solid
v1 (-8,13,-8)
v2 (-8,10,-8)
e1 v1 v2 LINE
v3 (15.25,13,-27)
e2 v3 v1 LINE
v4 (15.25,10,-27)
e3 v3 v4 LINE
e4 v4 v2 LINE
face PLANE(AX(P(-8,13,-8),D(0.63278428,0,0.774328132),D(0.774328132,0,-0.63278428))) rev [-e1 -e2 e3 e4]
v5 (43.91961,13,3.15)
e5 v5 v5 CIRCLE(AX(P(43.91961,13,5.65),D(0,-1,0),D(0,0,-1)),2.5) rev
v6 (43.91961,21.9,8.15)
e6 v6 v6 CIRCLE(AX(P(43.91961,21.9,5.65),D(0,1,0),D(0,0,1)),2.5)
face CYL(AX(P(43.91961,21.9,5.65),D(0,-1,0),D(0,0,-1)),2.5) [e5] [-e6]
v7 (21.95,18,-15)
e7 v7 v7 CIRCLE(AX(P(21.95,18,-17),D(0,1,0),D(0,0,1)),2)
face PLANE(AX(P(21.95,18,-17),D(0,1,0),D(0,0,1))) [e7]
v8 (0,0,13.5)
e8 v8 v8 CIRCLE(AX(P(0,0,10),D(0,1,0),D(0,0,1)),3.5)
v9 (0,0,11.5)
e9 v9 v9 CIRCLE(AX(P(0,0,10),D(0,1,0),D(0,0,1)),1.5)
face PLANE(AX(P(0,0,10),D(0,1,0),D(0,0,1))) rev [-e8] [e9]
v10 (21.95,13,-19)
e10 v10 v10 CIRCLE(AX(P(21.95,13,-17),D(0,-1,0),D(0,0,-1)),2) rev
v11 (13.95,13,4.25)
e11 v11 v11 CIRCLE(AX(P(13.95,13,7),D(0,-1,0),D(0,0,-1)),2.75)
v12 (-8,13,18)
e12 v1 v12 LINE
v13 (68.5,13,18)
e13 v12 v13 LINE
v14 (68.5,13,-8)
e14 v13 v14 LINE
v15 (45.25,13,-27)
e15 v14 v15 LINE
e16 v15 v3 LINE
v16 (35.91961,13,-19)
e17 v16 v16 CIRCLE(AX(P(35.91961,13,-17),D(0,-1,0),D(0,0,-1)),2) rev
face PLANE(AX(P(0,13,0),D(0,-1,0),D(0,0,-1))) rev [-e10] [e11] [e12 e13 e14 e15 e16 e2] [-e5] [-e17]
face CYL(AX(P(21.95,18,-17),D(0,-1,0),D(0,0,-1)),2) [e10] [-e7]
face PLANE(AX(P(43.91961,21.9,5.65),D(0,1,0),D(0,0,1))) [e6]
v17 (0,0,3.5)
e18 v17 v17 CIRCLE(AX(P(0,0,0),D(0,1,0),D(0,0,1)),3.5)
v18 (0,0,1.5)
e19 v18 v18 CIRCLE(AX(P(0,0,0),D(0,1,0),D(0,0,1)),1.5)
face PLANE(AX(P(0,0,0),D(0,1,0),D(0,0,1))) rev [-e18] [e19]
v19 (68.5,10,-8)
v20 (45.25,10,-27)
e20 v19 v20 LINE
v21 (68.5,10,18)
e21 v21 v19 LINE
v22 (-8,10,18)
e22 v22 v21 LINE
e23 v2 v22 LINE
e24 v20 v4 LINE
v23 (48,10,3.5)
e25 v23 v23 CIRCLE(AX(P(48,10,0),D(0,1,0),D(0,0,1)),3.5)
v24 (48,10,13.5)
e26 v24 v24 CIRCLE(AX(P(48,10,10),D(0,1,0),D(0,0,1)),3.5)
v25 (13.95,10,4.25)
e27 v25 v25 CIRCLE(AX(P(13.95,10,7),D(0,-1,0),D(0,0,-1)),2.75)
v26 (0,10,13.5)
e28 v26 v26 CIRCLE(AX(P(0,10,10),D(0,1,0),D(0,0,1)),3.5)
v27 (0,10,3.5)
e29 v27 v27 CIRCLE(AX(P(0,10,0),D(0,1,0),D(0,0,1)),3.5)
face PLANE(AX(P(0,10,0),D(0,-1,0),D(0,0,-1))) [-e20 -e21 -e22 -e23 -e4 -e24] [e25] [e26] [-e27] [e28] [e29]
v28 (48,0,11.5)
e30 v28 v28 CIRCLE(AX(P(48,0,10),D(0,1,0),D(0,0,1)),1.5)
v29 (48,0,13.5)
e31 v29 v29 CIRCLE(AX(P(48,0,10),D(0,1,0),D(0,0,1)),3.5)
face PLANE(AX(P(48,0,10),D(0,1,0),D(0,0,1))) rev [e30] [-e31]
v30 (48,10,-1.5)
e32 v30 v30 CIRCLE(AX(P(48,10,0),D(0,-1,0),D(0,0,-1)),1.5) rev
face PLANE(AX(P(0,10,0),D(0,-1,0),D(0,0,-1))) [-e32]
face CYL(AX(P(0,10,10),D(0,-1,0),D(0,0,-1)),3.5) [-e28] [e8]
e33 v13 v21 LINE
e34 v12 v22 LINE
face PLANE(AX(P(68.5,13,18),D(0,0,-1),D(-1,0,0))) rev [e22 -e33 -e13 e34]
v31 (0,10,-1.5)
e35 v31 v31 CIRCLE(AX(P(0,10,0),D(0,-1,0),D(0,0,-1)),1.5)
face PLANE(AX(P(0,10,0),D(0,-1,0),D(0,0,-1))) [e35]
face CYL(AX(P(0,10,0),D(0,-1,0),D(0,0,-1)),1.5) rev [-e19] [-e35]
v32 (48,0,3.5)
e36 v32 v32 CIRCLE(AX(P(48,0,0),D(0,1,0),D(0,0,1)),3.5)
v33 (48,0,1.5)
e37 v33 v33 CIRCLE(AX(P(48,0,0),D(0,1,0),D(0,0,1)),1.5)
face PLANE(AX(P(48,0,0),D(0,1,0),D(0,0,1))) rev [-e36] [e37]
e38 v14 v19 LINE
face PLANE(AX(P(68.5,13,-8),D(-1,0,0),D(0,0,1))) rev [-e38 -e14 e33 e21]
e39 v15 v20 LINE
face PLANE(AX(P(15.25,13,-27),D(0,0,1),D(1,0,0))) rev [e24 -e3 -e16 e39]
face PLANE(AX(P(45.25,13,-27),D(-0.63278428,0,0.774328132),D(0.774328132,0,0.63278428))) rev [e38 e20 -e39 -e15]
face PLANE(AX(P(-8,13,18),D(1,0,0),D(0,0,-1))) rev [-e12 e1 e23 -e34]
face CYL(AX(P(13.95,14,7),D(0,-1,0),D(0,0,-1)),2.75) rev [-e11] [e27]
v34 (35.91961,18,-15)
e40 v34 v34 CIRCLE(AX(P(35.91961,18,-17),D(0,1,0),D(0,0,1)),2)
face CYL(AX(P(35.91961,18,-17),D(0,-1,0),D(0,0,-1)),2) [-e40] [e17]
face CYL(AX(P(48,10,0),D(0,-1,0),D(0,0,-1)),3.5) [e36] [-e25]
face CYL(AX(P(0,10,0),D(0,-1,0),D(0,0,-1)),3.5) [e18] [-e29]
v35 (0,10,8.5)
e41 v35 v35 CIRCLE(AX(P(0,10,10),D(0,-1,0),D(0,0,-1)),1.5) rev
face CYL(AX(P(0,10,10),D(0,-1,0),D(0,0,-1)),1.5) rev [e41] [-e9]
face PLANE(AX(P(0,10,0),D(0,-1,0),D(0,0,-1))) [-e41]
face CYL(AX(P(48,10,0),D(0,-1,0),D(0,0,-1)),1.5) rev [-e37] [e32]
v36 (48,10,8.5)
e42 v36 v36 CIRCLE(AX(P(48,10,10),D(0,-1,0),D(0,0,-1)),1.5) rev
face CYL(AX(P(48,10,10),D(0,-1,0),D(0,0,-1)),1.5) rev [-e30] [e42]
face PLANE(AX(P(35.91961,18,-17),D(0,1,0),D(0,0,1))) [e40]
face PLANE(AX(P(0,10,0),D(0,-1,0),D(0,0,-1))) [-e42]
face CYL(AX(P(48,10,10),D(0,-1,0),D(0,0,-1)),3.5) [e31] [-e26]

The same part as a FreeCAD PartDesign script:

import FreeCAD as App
import Part
import Sketcher
from FreeCAD import Vector

doc = App.newDocument("Part")
body = doc.addObject("PartDesign::Body", "Body")

# Sketch on XZ plane
sketch1 = body.newObject("Sketcher::SketchObject", "Sketch")
sketch1.AttachmentSupport = (doc.getObject("XZ_Plane"), [""])
sketch1.MapMode = "FlatFace"
sketch1.addGeometry(Part.Circle(Vector(0, 0, 0), Vector(0, 0, 1), 3.5), False)
sketch1.addGeometry(Part.Circle(Vector(0, 0, 0), Vector(0, 0, 1), 1.5), False)
sketch1.addConstraint(Sketcher.Constraint("Coincident", 0, 3, -1, 1))
sketch1.addConstraint(Sketcher.Constraint("Coincident", 1, 3, -1, 1))
sketch1.addConstraint(Sketcher.Constraint("Diameter", 0, 7.0))
sketch1.addConstraint(Sketcher.Constraint("Diameter", 1, 3.0))
pad1 = body.newObject("PartDesign::Pad", "Pad")
pad1.Profile = sketch1
pad1.Length = 10
pad1.Reversed = True
body2 = doc.addObject("PartDesign::Body", "Body001")

# Sketch on XZ plane
sketch2 = body2.newObject("Sketcher::SketchObject", "Sketch001")
sketch2.AttachmentSupport = (doc.getObject("XZ_Plane001"), [""])
sketch2.MapMode = "FlatFace"
sketch2.addGeometry(Part.Circle(Vector(0, 10, 0), Vector(0, 0, 1), 3.5), False)
sketch2.addGeometry(Part.Circle(Vector(0, 10, 0), Vector(0, 0, 1), 1.5), False)
sketch2.addConstraint(Sketcher.Constraint("Coincident", 1, 3, 0, 3))
sketch2.addConstraint(Sketcher.Constraint("PointOnObject", 0, 3, -2))
sketch2.addConstraint(Sketcher.Constraint("Diameter", 0, 7.0))
sketch2.addConstraint(Sketcher.Constraint("Diameter", 1, 3.0))
sketch2.addConstraint(Sketcher.Constraint("DistanceY", -1, 1, 0, 3, 10.0))
pad2 = body2.newObject("PartDesign::Pad", "Pad001")
pad2.Profile = sketch2
pad2.Length = 10
pad2.Reversed = True
body3 = doc.addObject("PartDesign::Body", "Body002")

# Sketch on XZ plane
sketch3 = body3.newObject("Sketcher::SketchObject", "Sketch002")
sketch3.AttachmentSupport = (doc.getObject("XZ_Plane002"), [""])
sketch3.MapMode = "FlatFace"
sketch3.addGeometry(Part.Circle(Vector(48, 10, 0), Vector(0, 0, 1), 3.5), False)
sketch3.addGeometry(Part.Circle(Vector(48, 10, 0), Vector(0, 0, 1), 1.5), False)
sketch3.addConstraint(Sketcher.Constraint("Coincident", 1, 3, 0, 3))
sketch3.addConstraint(Sketcher.Constraint("Diameter", 0, 7.0))
sketch3.addConstraint(Sketcher.Constraint("Diameter", 1, 3.0))
sketch3.addConstraint(Sketcher.Constraint("DistanceX", -1, 1, 0, 3, 48.0))
sketch3.addConstraint(Sketcher.Constraint("DistanceY", -1, 1, 0, 3, 10.0))
pad3 = body3.newObject("PartDesign::Pad", "Pad002")
pad3.Profile = sketch3
pad3.Length = 10
pad3.Reversed = True
body4 = doc.addObject("PartDesign::Body", "Body003")

# Sketch on XZ plane
sketch4 = body4.newObject("Sketcher::SketchObject", "Sketch003")
sketch4.AttachmentSupport = (doc.getObject("XZ_Plane003"), [""])
sketch4.MapMode = "FlatFace"
sketch4.addGeometry(Part.Circle(Vector(48, 0, 0), Vector(0, 0, 1), 3.5), False)
sketch4.addGeometry(Part.Circle(Vector(48, 0, 0), Vector(0, 0, 1), 1.5), False)
sketch4.addConstraint(Sketcher.Constraint("Coincident", 1, 3, 0, 3))
sketch4.addConstraint(Sketcher.Constraint("PointOnObject", 0, 3, -1))
sketch4.addConstraint(Sketcher.Constraint("Diameter", 0, 7.0))
sketch4.addConstraint(Sketcher.Constraint("Diameter", 1, 3.0))
sketch4.addConstraint(Sketcher.Constraint("DistanceX", -1, 1, 0, 3, 48.0))
pad4 = body4.newObject("PartDesign::Pad", "Pad003")
pad4.Profile = sketch4
pad4.Length = 10
pad4.Reversed = True
body.AllowCompound = True
doc.recompute()

boolean = body.newObject("PartDesign::Boolean", "Boolean")
boolean.Type = "Fuse"
boolean.addObjects([body2])
doc.recompute()

boolean2 = body.newObject("PartDesign::Boolean", "Boolean001")
boolean2.Type = "Fuse"
boolean2.addObjects([body3])
doc.recompute()

boolean3 = body.newObject("PartDesign::Boolean", "Boolean002")
boolean3.Type = "Fuse"
boolean3.addObjects([body4])

# Sketch on XZ plane
sketch5 = body.newObject("Sketcher::SketchObject", "Sketch004")
sketch5.AttachmentSupport = (doc.getObject("XZ_Plane"), [""])
sketch5.MapMode = "FlatFace"
sketch5.AttachmentOffset = App.Placement(Vector(0, 0, -10), App.Rotation())
sketch5.addGeometry(Part.LineSegment(Vector(-8, -8, 0), Vector(-8, 18, 0)), False)
sketch5.addGeometry(Part.LineSegment(Vector(-8, 18, 0), Vector(68, 18, 0)), False)
sketch5.addGeometry(Part.LineSegment(Vector(68, 18, 0), Vector(68, -8, 0)), False)
sketch5.addGeometry(Part.LineSegment(Vector(68, -8, 0), Vector(45, -27, 0)), False)
sketch5.addGeometry(Part.LineSegment(Vector(45, -27, 0), Vector(15, -27, 0)), False)
sketch5.addGeometry(Part.LineSegment(Vector(15, -27, 0), Vector(-8, -8, 0)), False)
sketch5.addConstraint(Sketcher.Constraint("Coincident", 0, 2, 1, 1))
sketch5.addConstraint(Sketcher.Constraint("Coincident", 1, 2, 2, 1))
sketch5.addConstraint(Sketcher.Constraint("Coincident", 2, 2, 3, 1))
sketch5.addConstraint(Sketcher.Constraint("Coincident", 3, 2, 4, 1))
sketch5.addConstraint(Sketcher.Constraint("Coincident", 4, 2, 5, 1))
sketch5.addConstraint(Sketcher.Constraint("Coincident", 5, 2, 0, 1))
sketch5.addConstraint(Sketcher.Constraint("Vertical", 0))
sketch5.addConstraint(Sketcher.Constraint("Horizontal", 1))
sketch5.addConstraint(Sketcher.Constraint("Vertical", 2))
sketch5.addConstraint(Sketcher.Constraint("Horizontal", 4))
sketch5.addConstraint(Sketcher.Constraint("Horizontal", 2, 2, 5, 2))
sketch5.addConstraint(Sketcher.Constraint("Equal", 3, 5))
sketch5.addConstraint(Sketcher.Constraint("DistanceX", 4, 2, 4, 1, 30.0))
sketch5.addConstraint(Sketcher.Constraint("DistanceY", 0, 1, 0, 2, 26.0))
sketch5.addConstraint(Sketcher.Constraint("DistanceX", 1, 1, 1, 2, 76.5))
sketch5.addConstraint(Sketcher.Constraint("DistanceX", 0, 2, -1, 1, 8.0))
sketch5.addConstraint(Sketcher.Constraint("DistanceY", -1, 1, 0, 2, 18.0))
sketch5.addConstraint(Sketcher.Constraint("DistanceY", 3, 2, -1, 1, 27.0))
pad5 = body.newObject("PartDesign::Pad", "Pad004")
pad5.Profile = sketch5
pad5.Length = 3
pad5.Reversed = True

# Sketch on XZ plane
sketch6 = body.newObject("Sketcher::SketchObject", "Sketch005")
sketch6.AttachmentSupport = (doc.getObject("XZ_Plane"), [""])
sketch6.MapMode = "FlatFace"
sketch6.AttachmentOffset = App.Placement(Vector(0, 0, -10), App.Rotation())
sketch6.addGeometry(Part.Circle(Vector(13.9, 7, 0), Vector(0, 0, 1), 2.8), False)
sketch6.addConstraint(Sketcher.Constraint("Diameter", 0, 5.5))
sketch6.addConstraint(Sketcher.Constraint("DistanceY", -1, 1, 0, 3, 7.0))
sketch6.addConstraint(Sketcher.Constraint("DistanceX", -1, 1, 0, 3, 13.95))
pocket1 = body.newObject("PartDesign::Pocket", "Pocket")
pocket1.Profile = sketch6
pocket1.Length = 4

# Sketch on XZ plane
sketch7 = body.newObject("Sketcher::SketchObject", "Sketch006")
sketch7.AttachmentSupport = (doc.getObject("XZ_Plane"), [""])
sketch7.MapMode = "FlatFace"
sketch7.AttachmentOffset = App.Placement(Vector(0, 0, -13), App.Rotation())
sketch7.addGeometry(Part.Circle(Vector(43.9, 5.7, 0), Vector(0, 0, 1), 2.5), False)
sketch7.addConstraint(Sketcher.Constraint("Diameter", 0, 5.0))
sketch7.addConstraint(Sketcher.Constraint("DistanceY", -1, 1, 0, 3, 5.65))
sketch7.addConstraint(Sketcher.Constraint("DistanceX", -1, 1, 0, 3, 43.91961))
pad6 = body.newObject("PartDesign::Pad", "Pad005")
pad6.Profile = sketch7
pad6.Length = 8.9
pad6.Reversed = True

# Sketch on XZ plane
sketch8 = body.newObject("Sketcher::SketchObject", "Sketch007")
sketch8.AttachmentSupport = (doc.getObject("XZ_Plane"), [""])
sketch8.MapMode = "FlatFace"
sketch8.AttachmentOffset = App.Placement(Vector(0, 0, -13), App.Rotation())
sketch8.addGeometry(Part.Circle(Vector(21.9, -17, 0), Vector(0, 0, 1), 2), False)
sketch8.addGeometry(Part.Circle(Vector(35.9, -17, 0), Vector(0, 0, 1), 2), False)
sketch8.addConstraint(Sketcher.Constraint("Equal", 0, 1))
sketch8.addConstraint(Sketcher.Constraint("Horizontal", 0, 3, 1, 3))
sketch8.addConstraint(Sketcher.Constraint("Diameter", 0, 4.0))
sketch8.addConstraint(Sketcher.Constraint("DistanceY", 0, 3, -1, 1, 17.0))
sketch8.addConstraint(Sketcher.Constraint("DistanceX", -1, 1, 0, 3, 21.95))
sketch8.addConstraint(Sketcher.Constraint("DistanceX", -1, 1, 1, 3, 35.91961))
pad7 = body.newObject("PartDesign::Pad", "Pad006")
pad7.Profile = sketch8
pad7.Length = 5
pad7.Reversed = True

doc.recompute()
